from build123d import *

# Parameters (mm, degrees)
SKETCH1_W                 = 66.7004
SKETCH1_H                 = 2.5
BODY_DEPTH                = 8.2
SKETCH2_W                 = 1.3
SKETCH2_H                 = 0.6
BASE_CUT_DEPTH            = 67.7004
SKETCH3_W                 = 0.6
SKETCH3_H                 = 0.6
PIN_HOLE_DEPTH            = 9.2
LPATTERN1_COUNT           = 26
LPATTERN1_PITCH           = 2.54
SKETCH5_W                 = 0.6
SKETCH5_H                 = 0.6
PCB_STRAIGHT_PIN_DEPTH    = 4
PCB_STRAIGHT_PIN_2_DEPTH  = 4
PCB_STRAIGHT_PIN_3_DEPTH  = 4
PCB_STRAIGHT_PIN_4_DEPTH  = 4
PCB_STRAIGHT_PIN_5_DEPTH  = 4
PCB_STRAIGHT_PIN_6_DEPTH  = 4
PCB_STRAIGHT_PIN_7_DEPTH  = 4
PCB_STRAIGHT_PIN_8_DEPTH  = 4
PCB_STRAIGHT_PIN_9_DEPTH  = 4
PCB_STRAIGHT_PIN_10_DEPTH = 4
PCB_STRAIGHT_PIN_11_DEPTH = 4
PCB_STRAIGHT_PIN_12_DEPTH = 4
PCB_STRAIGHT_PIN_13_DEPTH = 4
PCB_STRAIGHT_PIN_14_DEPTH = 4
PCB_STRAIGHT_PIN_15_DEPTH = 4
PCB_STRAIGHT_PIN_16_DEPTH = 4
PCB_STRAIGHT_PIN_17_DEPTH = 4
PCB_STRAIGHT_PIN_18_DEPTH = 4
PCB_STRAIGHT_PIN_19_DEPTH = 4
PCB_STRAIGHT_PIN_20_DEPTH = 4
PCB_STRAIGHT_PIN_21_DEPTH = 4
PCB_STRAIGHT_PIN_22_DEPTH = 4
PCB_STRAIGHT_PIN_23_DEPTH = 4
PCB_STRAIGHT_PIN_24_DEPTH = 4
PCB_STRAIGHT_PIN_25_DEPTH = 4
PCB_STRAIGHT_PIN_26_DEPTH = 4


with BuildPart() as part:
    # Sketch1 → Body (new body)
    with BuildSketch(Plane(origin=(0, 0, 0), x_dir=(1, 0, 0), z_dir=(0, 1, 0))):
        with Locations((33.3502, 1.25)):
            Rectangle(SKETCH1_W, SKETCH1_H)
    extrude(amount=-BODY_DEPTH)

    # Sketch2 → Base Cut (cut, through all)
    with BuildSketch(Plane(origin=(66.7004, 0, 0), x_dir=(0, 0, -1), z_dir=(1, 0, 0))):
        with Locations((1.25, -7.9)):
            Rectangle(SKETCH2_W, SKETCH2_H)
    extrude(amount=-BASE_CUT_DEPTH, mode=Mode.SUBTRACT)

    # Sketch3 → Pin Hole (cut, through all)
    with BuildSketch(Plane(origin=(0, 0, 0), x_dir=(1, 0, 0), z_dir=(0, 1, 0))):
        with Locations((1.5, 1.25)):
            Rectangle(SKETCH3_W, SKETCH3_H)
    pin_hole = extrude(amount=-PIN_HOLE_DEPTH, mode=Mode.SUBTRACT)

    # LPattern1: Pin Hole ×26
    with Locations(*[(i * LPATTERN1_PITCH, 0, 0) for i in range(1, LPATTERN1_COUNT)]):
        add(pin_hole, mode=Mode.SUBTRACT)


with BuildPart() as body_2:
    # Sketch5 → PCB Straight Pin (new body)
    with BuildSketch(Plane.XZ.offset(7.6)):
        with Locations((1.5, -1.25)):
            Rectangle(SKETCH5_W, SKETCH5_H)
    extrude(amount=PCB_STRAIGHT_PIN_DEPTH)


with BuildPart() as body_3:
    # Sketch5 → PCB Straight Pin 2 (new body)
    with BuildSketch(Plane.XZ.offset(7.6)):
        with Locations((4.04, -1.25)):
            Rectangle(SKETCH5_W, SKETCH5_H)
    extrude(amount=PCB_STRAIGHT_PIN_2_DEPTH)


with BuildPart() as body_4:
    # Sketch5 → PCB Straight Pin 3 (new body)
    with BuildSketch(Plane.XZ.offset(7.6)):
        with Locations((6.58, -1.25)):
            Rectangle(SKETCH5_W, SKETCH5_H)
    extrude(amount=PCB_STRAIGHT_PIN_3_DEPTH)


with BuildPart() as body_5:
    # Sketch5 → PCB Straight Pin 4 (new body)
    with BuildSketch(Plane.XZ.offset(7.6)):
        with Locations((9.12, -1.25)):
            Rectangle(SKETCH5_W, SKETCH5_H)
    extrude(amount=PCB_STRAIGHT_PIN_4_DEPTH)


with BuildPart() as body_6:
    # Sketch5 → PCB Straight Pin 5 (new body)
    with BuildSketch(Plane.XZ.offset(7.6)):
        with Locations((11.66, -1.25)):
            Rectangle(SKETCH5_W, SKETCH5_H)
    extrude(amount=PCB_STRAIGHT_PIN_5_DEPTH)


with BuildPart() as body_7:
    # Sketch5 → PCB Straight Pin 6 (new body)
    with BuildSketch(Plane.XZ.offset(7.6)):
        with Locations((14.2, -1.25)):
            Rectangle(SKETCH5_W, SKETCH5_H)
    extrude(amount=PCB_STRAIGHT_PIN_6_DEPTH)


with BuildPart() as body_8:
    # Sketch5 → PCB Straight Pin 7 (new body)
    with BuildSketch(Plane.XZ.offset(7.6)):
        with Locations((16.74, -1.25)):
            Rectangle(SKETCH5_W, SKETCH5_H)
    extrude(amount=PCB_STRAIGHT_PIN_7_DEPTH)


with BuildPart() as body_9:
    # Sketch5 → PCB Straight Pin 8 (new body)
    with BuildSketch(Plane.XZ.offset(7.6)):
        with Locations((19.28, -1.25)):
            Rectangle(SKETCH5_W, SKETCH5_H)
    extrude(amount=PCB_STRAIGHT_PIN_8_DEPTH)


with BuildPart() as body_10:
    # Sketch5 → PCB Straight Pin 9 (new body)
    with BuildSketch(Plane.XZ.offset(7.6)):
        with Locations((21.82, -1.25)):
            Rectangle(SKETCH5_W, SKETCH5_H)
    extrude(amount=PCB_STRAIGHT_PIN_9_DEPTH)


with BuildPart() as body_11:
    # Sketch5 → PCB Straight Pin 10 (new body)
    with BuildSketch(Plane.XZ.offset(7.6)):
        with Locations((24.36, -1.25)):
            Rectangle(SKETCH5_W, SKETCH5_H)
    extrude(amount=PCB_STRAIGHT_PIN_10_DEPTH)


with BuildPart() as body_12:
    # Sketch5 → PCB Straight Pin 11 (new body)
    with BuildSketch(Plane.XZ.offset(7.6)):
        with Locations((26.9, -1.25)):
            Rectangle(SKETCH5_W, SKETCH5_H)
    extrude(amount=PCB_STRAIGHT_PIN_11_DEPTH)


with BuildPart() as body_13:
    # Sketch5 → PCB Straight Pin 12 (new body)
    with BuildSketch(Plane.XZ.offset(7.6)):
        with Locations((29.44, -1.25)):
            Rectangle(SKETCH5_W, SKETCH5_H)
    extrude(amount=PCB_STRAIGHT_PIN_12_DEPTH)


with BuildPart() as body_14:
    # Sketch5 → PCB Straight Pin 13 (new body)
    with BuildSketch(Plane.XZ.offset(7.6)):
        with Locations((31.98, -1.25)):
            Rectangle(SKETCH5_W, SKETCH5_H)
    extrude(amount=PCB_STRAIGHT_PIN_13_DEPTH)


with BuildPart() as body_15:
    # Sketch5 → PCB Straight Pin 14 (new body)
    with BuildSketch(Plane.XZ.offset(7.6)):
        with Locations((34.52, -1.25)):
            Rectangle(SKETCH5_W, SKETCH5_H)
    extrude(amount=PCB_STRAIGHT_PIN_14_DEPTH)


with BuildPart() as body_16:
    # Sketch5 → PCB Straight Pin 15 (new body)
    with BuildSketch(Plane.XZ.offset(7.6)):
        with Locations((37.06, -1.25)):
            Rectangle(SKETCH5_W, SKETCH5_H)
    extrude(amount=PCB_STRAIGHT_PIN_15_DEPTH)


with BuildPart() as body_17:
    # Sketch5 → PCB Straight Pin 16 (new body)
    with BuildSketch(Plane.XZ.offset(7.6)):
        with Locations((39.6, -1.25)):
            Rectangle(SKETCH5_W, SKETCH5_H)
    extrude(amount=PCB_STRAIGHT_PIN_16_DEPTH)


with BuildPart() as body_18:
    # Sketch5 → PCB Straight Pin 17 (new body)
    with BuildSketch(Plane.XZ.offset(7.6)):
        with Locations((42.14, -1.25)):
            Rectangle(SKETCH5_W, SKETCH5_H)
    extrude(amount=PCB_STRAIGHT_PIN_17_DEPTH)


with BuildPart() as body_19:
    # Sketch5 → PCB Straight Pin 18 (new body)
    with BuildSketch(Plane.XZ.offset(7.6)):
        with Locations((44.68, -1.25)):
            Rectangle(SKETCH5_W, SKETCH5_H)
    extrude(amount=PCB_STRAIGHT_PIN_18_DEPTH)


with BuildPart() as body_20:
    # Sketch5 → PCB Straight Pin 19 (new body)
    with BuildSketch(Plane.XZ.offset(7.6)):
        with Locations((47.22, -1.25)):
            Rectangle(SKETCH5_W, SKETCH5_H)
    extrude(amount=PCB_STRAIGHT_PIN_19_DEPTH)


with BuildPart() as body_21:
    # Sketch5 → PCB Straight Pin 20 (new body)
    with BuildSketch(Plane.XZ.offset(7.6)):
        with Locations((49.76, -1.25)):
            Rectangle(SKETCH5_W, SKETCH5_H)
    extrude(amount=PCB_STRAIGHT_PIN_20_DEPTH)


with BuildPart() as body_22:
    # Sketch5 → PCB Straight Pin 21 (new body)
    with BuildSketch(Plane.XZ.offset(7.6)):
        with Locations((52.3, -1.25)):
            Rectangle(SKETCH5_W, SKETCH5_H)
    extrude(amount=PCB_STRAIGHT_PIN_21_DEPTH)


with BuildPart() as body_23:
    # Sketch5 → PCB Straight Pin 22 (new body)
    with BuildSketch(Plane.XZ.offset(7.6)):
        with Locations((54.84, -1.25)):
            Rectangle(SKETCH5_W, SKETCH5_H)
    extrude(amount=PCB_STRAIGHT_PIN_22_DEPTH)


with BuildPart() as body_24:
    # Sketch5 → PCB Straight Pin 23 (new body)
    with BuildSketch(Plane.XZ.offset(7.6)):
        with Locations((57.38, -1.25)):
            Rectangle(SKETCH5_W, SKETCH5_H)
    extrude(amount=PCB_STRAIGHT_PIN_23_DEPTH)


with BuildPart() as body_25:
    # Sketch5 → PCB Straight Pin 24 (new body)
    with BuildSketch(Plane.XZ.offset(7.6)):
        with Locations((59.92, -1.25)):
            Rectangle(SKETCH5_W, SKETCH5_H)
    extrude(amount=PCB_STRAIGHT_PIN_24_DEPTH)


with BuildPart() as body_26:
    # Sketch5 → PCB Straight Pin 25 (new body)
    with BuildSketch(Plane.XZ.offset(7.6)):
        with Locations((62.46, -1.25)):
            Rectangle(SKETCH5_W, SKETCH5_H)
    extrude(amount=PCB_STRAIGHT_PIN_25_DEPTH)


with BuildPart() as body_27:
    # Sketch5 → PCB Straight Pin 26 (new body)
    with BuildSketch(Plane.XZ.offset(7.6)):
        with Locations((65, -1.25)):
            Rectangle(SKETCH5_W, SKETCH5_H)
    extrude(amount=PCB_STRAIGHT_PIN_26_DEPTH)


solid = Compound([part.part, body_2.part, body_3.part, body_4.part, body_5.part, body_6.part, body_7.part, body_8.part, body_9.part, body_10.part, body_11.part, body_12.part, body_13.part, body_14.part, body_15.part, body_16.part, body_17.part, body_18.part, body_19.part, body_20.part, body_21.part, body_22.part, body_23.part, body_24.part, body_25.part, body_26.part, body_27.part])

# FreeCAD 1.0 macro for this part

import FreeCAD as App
import Part
import Sketcher
Q = App.Units.Quantity


def add_polygon(sketch, points):
    """Adds a closed chain of lines whose ends are joined by coincident constraints."""
    first, n = sketch.GeometryCount, len(points)
    for a, b in zip(points, points[1:] + points[:1]):
        sketch.addGeometry(Part.LineSegment(App.Vector(*a, 0), App.Vector(*b, 0)), False)
    for i in range(n):
        sketch.addConstraint(Sketcher.Constraint("Coincident", first + i, 2, first + (i + 1) % n, 1))

doc = App.newDocument("Part")
body = doc.addObject("PartDesign::Body", "Body")

sketch1 = body.newObject("Sketcher::SketchObject", "Sketch")
sketch1.AttachmentSupport = (doc.getObject("XZ_Plane"), [""])
sketch1.MapMode = "FlatFace"
add_polygon(sketch1, [(0, -2.5), (0, 0), (66.7, 0), (66.7, -2.5)])
sketch1.addConstraint(Sketcher.Constraint("Vertical", 0))
sketch1.addConstraint(Sketcher.Constraint("Horizontal", 1))
sketch1.addConstraint(Sketcher.Constraint("Vertical", 2))
sketch1.addConstraint(Sketcher.Constraint("Horizontal", 3))
sketch1.addConstraint(Sketcher.Constraint("Coincident", 0, 2, -1, 1))
sketch1.addConstraint(Sketcher.Constraint("DistanceY", 0, 1, 0, 2, Q("2.5 mm")))
sketch1.addConstraint(Sketcher.Constraint("DistanceX", 1, 1, 1, 2, Q("66.7004 mm")))
pad1 = body.newObject("PartDesign::Pad", "Pad")
pad1.Profile = sketch1
pad1.Length = 8.2

sketch2 = body.newObject("Sketcher::SketchObject", "Sketch001")
sketch2.AttachmentSupport = (doc.getObject("YZ_Plane"), [""])
sketch2.MapMode = "FlatFace"
sketch2.AttachmentOffset = App.Placement(App.Vector(0, 0, 66.7004), App.Rotation())
add_polygon(sketch2, [(-7.6, -0.6), (-8.2, -0.6), (-8.2, -1.9), (-7.6, -1.9)])
sketch2.addConstraint(Sketcher.Constraint("Horizontal", 0))
sketch2.addConstraint(Sketcher.Constraint("Vertical", 1))
sketch2.addConstraint(Sketcher.Constraint("Horizontal", 2))
sketch2.addConstraint(Sketcher.Constraint("Vertical", 3))
sketch2.addConstraint(Sketcher.Constraint("DistanceX", 0, 2, 0, 1, Q("0.6 mm")))
sketch2.addConstraint(Sketcher.Constraint("DistanceY", 1, 2, 1, 1, Q("1.3 mm")))
sketch2.addConstraint(Sketcher.Constraint("DistanceX", 0, 2, -1, 1, Q("8.2 mm")))
sketch2.addConstraint(Sketcher.Constraint("DistanceY", 0, 2, -1, 1, Q("0.6 mm")))
pocket1 = body.newObject("PartDesign::Pocket", "Pocket")
pocket1.Profile = sketch2
pocket1.Type = "ThroughAll"

sketch3 = body.newObject("Sketcher::SketchObject", "Sketch002")
sketch3.AttachmentSupport = (doc.getObject("XZ_Plane"), [""])
sketch3.MapMode = "FlatFace"
add_polygon(sketch3, [(1.2, -1.6), (1.2, -0.9), (1.8, -0.9), (1.8, -1.6)])
sketch3.addConstraint(Sketcher.Constraint("Vertical", 0))
sketch3.addConstraint(Sketcher.Constraint("Horizontal", 1))
sketch3.addConstraint(Sketcher.Constraint("Vertical", 2))
sketch3.addConstraint(Sketcher.Constraint("Horizontal", 3))
sketch3.addConstraint(Sketcher.Constraint("Equal", 3, 0))
sketch3.addConstraint(Sketcher.Constraint("DistanceX", 1, 1, 1, 2, Q("0.6 mm")))
sketch3.addConstraint(Sketcher.Constraint("DistanceX", -1, 1, 0, 2, Q("1.2 mm")))
sketch3.addConstraint(Sketcher.Constraint("DistanceY", 0, 2, -1, 1, Q("0.95 mm")))
pocket2 = body.newObject("PartDesign::Pocket", "Pocket001")
pocket2.Profile = sketch3
pocket2.Type = "ThroughAll"
pocket2.Reversed = True
doc.recompute()

linearpattern = body.newObject("PartDesign::LinearPattern", "LinearPattern")
linearpattern.Originals = [pocket2]
linearpattern.Direction = (doc.getObject("X_Axis"), [""])
linearpattern.Mode = "offset"
linearpattern.Offset = 2.54
linearpattern.Occurrences = 26
body.Tip = linearpattern
body2 = doc.addObject("PartDesign::Body", "Body001")

sketch4 = body2.newObject("Sketcher::SketchObject", "Sketch003")
sketch4.AttachmentSupport = (doc.getObject("XZ_Plane001"), [""])
sketch4.MapMode = "FlatFace"
sketch4.AttachmentOffset = App.Placement(App.Vector(0, 0, 7.6), App.Rotation())
add_polygon(sketch4, [(1.2, -0.9), (1.2, -1.6), (1.8, -1.6), (1.8, -0.9)])
sketch4.addConstraint(Sketcher.Constraint("Vertical", 0))
sketch4.addConstraint(Sketcher.Constraint("Horizontal", 1))
sketch4.addConstraint(Sketcher.Constraint("Vertical", 2))
sketch4.addConstraint(Sketcher.Constraint("Horizontal", 3))
sketch4.addConstraint(Sketcher.Constraint("Equal", 3, 0))
sketch4.addConstraint(Sketcher.Constraint("DistanceX", 1, 1, 1, 2, Q("0.6 mm")))
sketch4.addConstraint(Sketcher.Constraint("DistanceX", -1, 1, 0, 2, Q("1.2 mm")))
sketch4.addConstraint(Sketcher.Constraint("DistanceY", 0, 2, -1, 1, Q("1.55 mm")))
pad2 = body2.newObject("PartDesign::Pad", "Pad001")
pad2.Profile = sketch4
pad2.Length = 4
body3 = doc.addObject("PartDesign::Body", "Body002")

sketch5 = body3.newObject("Sketcher::SketchObject", "Sketch004")
sketch5.AttachmentSupport = (doc.getObject("XZ_Plane002"), [""])
sketch5.MapMode = "FlatFace"
sketch5.AttachmentOffset = App.Placement(App.Vector(0, 0, 7.6), App.Rotation())
add_polygon(sketch5, [(3.7, -0.9), (3.7, -1.6), (4.3, -1.6), (4.3, -0.9)])
sketch5.addConstraint(Sketcher.Constraint("Vertical", 0))
sketch5.addConstraint(Sketcher.Constraint("Horizontal", 1))
sketch5.addConstraint(Sketcher.Constraint("Vertical", 2))
sketch5.addConstraint(Sketcher.Constraint("Horizontal", 3))
sketch5.addConstraint(Sketcher.Constraint("Equal", 3, 0))
sketch5.addConstraint(Sketcher.Constraint("DistanceX", 1, 1, 1, 2, Q("0.6 mm")))
sketch5.addConstraint(Sketcher.Constraint("DistanceX", -1, 1, 0, 2, Q("3.74 mm")))
sketch5.addConstraint(Sketcher.Constraint("DistanceY", 0, 2, -1, 1, Q("1.55 mm")))
pad3 = body3.newObject("PartDesign::Pad", "Pad002")
pad3.Profile = sketch5
pad3.Length = 4
body4 = doc.addObject("PartDesign::Body", "Body003")

sketch6 = body4.newObject("Sketcher::SketchObject", "Sketch005")
sketch6.AttachmentSupport = (doc.getObject("XZ_Plane003"), [""])
sketch6.MapMode = "FlatFace"
sketch6.AttachmentOffset = App.Placement(App.Vector(0, 0, 7.6), App.Rotation())
add_polygon(sketch6, [(6.3, -0.9), (6.3, -1.6), (6.9, -1.6), (6.9, -0.9)])
sketch6.addConstraint(Sketcher.Constraint("Vertical", 0))
sketch6.addConstraint(Sketcher.Constraint("Horizontal", 1))
sketch6.addConstraint(Sketcher.Constraint("Vertical", 2))
sketch6.addConstraint(Sketcher.Constraint("Horizontal", 3))
sketch6.addConstraint(Sketcher.Constraint("Equal", 3, 0))
sketch6.addConstraint(Sketcher.Constraint("DistanceX", 1, 1, 1, 2, Q("0.6 mm")))
sketch6.addConstraint(Sketcher.Constraint("DistanceX", -1, 1, 0, 2, Q("6.28 mm")))
sketch6.addConstraint(Sketcher.Constraint("DistanceY", 0, 2, -1, 1, Q("1.55 mm")))
pad4 = body4.newObject("PartDesign::Pad", "Pad003")
pad4.Profile = sketch6
pad4.Length = 4
body5 = doc.addObject("PartDesign::Body", "Body004")

sketch7 = body5.newObject("Sketcher::SketchObject", "Sketch006")
sketch7.AttachmentSupport = (doc.getObject("XZ_Plane004"), [""])
sketch7.MapMode = "FlatFace"
sketch7.AttachmentOffset = App.Placement(App.Vector(0, 0, 7.6), App.Rotation())
add_polygon(sketch7, [(8.8, -0.9), (8.8, -1.6), (9.4, -1.6), (9.4, -0.9)])
sketch7.addConstraint(Sketcher.Constraint("Vertical", 0))
sketch7.addConstraint(Sketcher.Constraint("Horizontal", 1))
sketch7.addConstraint(Sketcher.Constraint("Vertical", 2))
sketch7.addConstraint(Sketcher.Constraint("Horizontal", 3))
sketch7.addConstraint(Sketcher.Constraint("Equal", 3, 0))
sketch7.addConstraint(Sketcher.Constraint("DistanceX", 1, 1, 1, 2, Q("0.6 mm")))
sketch7.addConstraint(Sketcher.Constraint("DistanceX", -1, 1, 0, 2, Q("8.82 mm")))
sketch7.addConstraint(Sketcher.Constraint("DistanceY", 0, 2, -1, 1, Q("1.55 mm")))
pad5 = body5.newObject("PartDesign::Pad", "Pad004")
pad5.Profile = sketch7
pad5.Length = 4
body6 = doc.addObject("PartDesign::Body", "Body005")

sketch8 = body6.newObject("Sketcher::SketchObject", "Sketch007")
sketch8.AttachmentSupport = (doc.getObject("XZ_Plane005"), [""])
sketch8.MapMode = "FlatFace"
sketch8.AttachmentOffset = App.Placement(App.Vector(0, 0, 7.6), App.Rotation())
add_polygon(sketch8, [(11.4, -0.9), (11.4, -1.6), (12, -1.6), (12, -0.9)])
sketch8.addConstraint(Sketcher.Constraint("Vertical", 0))
sketch8.addConstraint(Sketcher.Constraint("Horizontal", 1))
sketch8.addConstraint(Sketcher.Constraint("Vertical", 2))
sketch8.addConstraint(Sketcher.Constraint("Horizontal", 3))
sketch8.addConstraint(Sketcher.Constraint("Equal", 3, 0))
sketch8.addConstraint(Sketcher.Constraint("DistanceX", 1, 1, 1, 2, Q("0.6 mm")))
sketch8.addConstraint(Sketcher.Constraint("DistanceX", -1, 1, 0, 2, Q("11.36 mm")))
sketch8.addConstraint(Sketcher.Constraint("DistanceY", 0, 2, -1, 1, Q("1.55 mm")))
pad6 = body6.newObject("PartDesign::Pad", "Pad005")
pad6.Profile = sketch8
pad6.Length = 4
body7 = doc.addObject("PartDesign::Body", "Body006")

sketch9 = body7.newObject("Sketcher::SketchObject", "Sketch008")
sketch9.AttachmentSupport = (doc.getObject("XZ_Plane006"), [""])
sketch9.MapMode = "FlatFace"
sketch9.AttachmentOffset = App.Placement(App.Vector(0, 0, 7.6), App.Rotation())
add_polygon(sketch9, [(13.9, -0.9), (13.9, -1.6), (14.5, -1.6), (14.5, -0.9)])
sketch9.addConstraint(Sketcher.Constraint("Vertical", 0))
sketch9.addConstraint(Sketcher.Constraint("Horizontal", 1))
sketch9.addConstraint(Sketcher.Constraint("Vertical", 2))
sketch9.addConstraint(Sketcher.Constraint("Horizontal", 3))
sketch9.addConstraint(Sketcher.Constraint("Equal", 3, 0))
sketch9.addConstraint(Sketcher.Constraint("DistanceX", 1, 1, 1, 2, Q("0.6 mm")))
sketch9.addConstraint(Sketcher.Constraint("DistanceX", -1, 1, 0, 2, Q("13.9 mm")))
sketch9.addConstraint(Sketcher.Constraint("DistanceY", 0, 2, -1, 1, Q("1.55 mm")))
pad7 = body7.newObject("PartDesign::Pad", "Pad006")
pad7.Profile = sketch9
pad7.Length = 4
body8 = doc.addObject("PartDesign::Body", "Body007")

sketch10 = body8.newObject("Sketcher::SketchObject", "Sketch009")
sketch10.AttachmentSupport = (doc.getObject("XZ_Plane007"), [""])
sketch10.MapMode = "FlatFace"
sketch10.AttachmentOffset = App.Placement(App.Vector(0, 0, 7.6), App.Rotation())
add_polygon(sketch10, [(16.4, -0.9), (16.4, -1.6), (17, -1.6), (17, -0.9)])
sketch10.addConstraint(Sketcher.Constraint("Vertical", 0))
sketch10.addConstraint(Sketcher.Constraint("Horizontal", 1))
sketch10.addConstraint(Sketcher.Constraint("Vertical", 2))
sketch10.addConstraint(Sketcher.Constraint("Horizontal", 3))
sketch10.addConstraint(Sketcher.Constraint("Equal", 3, 0))
sketch10.addConstraint(Sketcher.Constraint("DistanceX", 1, 1, 1, 2, Q("0.6 mm")))
sketch10.addConstraint(Sketcher.Constraint("DistanceX", -1, 1, 0, 2, Q("16.44 mm")))
sketch10.addConstraint(Sketcher.Constraint("DistanceY", 0, 2, -1, 1, Q("1.55 mm")))
pad8 = body8.newObject("PartDesign::Pad", "Pad007")
pad8.Profile = sketch10
pad8.Length = 4
body9 = doc.addObject("PartDesign::Body", "Body008")

sketch11 = body9.newObject("Sketcher::SketchObject", "Sketch010")
sketch11.AttachmentSupport = (doc.getObject("XZ_Plane008"), [""])
sketch11.MapMode = "FlatFace"
sketch11.AttachmentOffset = App.Placement(App.Vector(0, 0, 7.6), App.Rotation())
add_polygon(sketch11, [(19, -0.9), (19, -1.6), (19.6, -1.6), (19.6, -0.9)])
sketch11.addConstraint(Sketcher.Constraint("Vertical", 0))
sketch11.addConstraint(Sketcher.Constraint("Horizontal", 1))
sketch11.addConstraint(Sketcher.Constraint("Vertical", 2))
sketch11.addConstraint(Sketcher.Constraint("Horizontal", 3))
sketch11.addConstraint(Sketcher.Constraint("Equal", 3, 0))
sketch11.addConstraint(Sketcher.Constraint("DistanceX", 1, 1, 1, 2, Q("0.6 mm")))
sketch11.addConstraint(Sketcher.Constraint("DistanceX", -1, 1, 0, 2, Q("18.98 mm")))
sketch11.addConstraint(Sketcher.Constraint("DistanceY", 0, 2, -1, 1, Q("1.55 mm")))
pad9 = body9.newObject("PartDesign::Pad", "Pad008")
pad9.Profile = sketch11
pad9.Length = 4
body10 = doc.addObject("PartDesign::Body", "Body009")

sketch12 = body10.newObject("Sketcher::SketchObject", "Sketch011")
sketch12.AttachmentSupport = (doc.getObject("XZ_Plane009"), [""])
sketch12.MapMode = "FlatFace"
sketch12.AttachmentOffset = App.Placement(App.Vector(0, 0, 7.6), App.Rotation())
add_polygon(sketch12, [(21.5, -0.9), (21.5, -1.6), (22.1, -1.6), (22.1, -0.9)])
sketch12.addConstraint(Sketcher.Constraint("Vertical", 0))
sketch12.addConstraint(Sketcher.Constraint("Horizontal", 1))
sketch12.addConstraint(Sketcher.Constraint("Vertical", 2))
sketch12.addConstraint(Sketcher.Constraint("Horizontal", 3))
sketch12.addConstraint(Sketcher.Constraint("Equal", 3, 0))
sketch12.addConstraint(Sketcher.Constraint("DistanceX", 1, 1, 1, 2, Q("0.6 mm")))
sketch12.addConstraint(Sketcher.Constraint("DistanceX", -1, 1, 0, 2, Q("21.52 mm")))
sketch12.addConstraint(Sketcher.Constraint("DistanceY", 0, 2, -1, 1, Q("1.55 mm")))
pad10 = body10.newObject("PartDesign::Pad", "Pad009")
pad10.Profile = sketch12
pad10.Length = 4
body11 = doc.addObject("PartDesign::Body", "Body010")

sketch13 = body11.newObject("Sketcher::SketchObject", "Sketch012")
sketch13.AttachmentSupport = (doc.getObject("XZ_Plane010"), [""])
sketch13.MapMode = "FlatFace"
sketch13.AttachmentOffset = App.Placement(App.Vector(0, 0, 7.6), App.Rotation())
add_polygon(sketch13, [(24.1, -0.9), (24.1, -1.6), (24.7, -1.6), (24.7, -0.9)])
sketch13.addConstraint(Sketcher.Constraint("Vertical", 0))
sketch13.addConstraint(Sketcher.Constraint("Horizontal", 1))
sketch13.addConstraint(Sketcher.Constraint("Vertical", 2))
sketch13.addConstraint(Sketcher.Constraint("Horizontal", 3))
sketch13.addConstraint(Sketcher.Constraint("Equal", 3, 0))
sketch13.addConstraint(Sketcher.Constraint("DistanceX", 1, 1, 1, 2, Q("0.6 mm")))
sketch13.addConstraint(Sketcher.Constraint("DistanceX", -1, 1, 0, 2, Q("24.06 mm")))
sketch13.addConstraint(Sketcher.Constraint("DistanceY", 0, 2, -1, 1, Q("1.55 mm")))
pad11 = body11.newObject("PartDesign::Pad", "Pad010")
pad11.Profile = sketch13
pad11.Length = 4
body12 = doc.addObject("PartDesign::Body", "Body011")

sketch14 = body12.newObject("Sketcher::SketchObject", "Sketch013")
sketch14.AttachmentSupport = (doc.getObject("XZ_Plane011"), [""])
sketch14.MapMode = "FlatFace"
sketch14.AttachmentOffset = App.Placement(App.Vector(0, 0, 7.6), App.Rotation())
add_polygon(sketch14, [(26.6, -0.9), (26.6, -1.6), (27.2, -1.6), (27.2, -0.9)])
sketch14.addConstraint(Sketcher.Constraint("Vertical", 0))
sketch14.addConstraint(Sketcher.Constraint("Horizontal", 1))
sketch14.addConstraint(Sketcher.Constraint("Vertical", 2))
sketch14.addConstraint(Sketcher.Constraint("Horizontal", 3))
sketch14.addConstraint(Sketcher.Constraint("Equal", 3, 0))
sketch14.addConstraint(Sketcher.Constraint("DistanceX", 1, 1, 1, 2, Q("0.6 mm")))
sketch14.addConstraint(Sketcher.Constraint("DistanceX", -1, 1, 0, 2, Q("26.6 mm")))
sketch14.addConstraint(Sketcher.Constraint("DistanceY", 0, 2, -1, 1, Q("1.55 mm")))
pad12 = body12.newObject("PartDesign::Pad", "Pad011")
pad12.Profile = sketch14
pad12.Length = 4
body13 = doc.addObject("PartDesign::Body", "Body012")

sketch15 = body13.newObject("Sketcher::SketchObject", "Sketch014")
sketch15.AttachmentSupport = (doc.getObject("XZ_Plane012"), [""])
sketch15.MapMode = "FlatFace"
sketch15.AttachmentOffset = App.Placement(App.Vector(0, 0, 7.6), App.Rotation())
add_polygon(sketch15, [(29.1, -0.9), (29.1, -1.6), (29.7, -1.6), (29.7, -0.9)])
sketch15.addConstraint(Sketcher.Constraint("Vertical", 0))
sketch15.addConstraint(Sketcher.Constraint("Horizontal", 1))
sketch15.addConstraint(Sketcher.Constraint("Vertical", 2))
sketch15.addConstraint(Sketcher.Constraint("Horizontal", 3))
sketch15.addConstraint(Sketcher.Constraint("Equal", 3, 0))
sketch15.addConstraint(Sketcher.Constraint("DistanceX", 1, 1, 1, 2, Q("0.6 mm")))
sketch15.addConstraint(Sketcher.Constraint("DistanceX", -1, 1, 0, 2, Q("29.14 mm")))
sketch15.addConstraint(Sketcher.Constraint("DistanceY", 0, 2, -1, 1, Q("1.55 mm")))
pad13 = body13.newObject("PartDesign::Pad", "Pad012")
pad13.Profile = sketch15
pad13.Length = 4
body14 = doc.addObject("PartDesign::Body", "Body013")

sketch16 = body14.newObject("Sketcher::SketchObject", "Sketch015")
sketch16.AttachmentSupport = (doc.getObject("XZ_Plane013"), [""])
sketch16.MapMode = "FlatFace"
sketch16.AttachmentOffset = App.Placement(App.Vector(0, 0, 7.6), App.Rotation())
add_polygon(sketch16, [(31.7, -0.9), (31.7, -1.6), (32.3, -1.6), (32.3, -0.9)])
sketch16.addConstraint(Sketcher.Constraint("Vertical", 0))
sketch16.addConstraint(Sketcher.Constraint("Horizontal", 1))
sketch16.addConstraint(Sketcher.Constraint("Vertical", 2))
sketch16.addConstraint(Sketcher.Constraint("Horizontal", 3))
sketch16.addConstraint(Sketcher.Constraint("Equal", 3, 0))
sketch16.addConstraint(Sketcher.Constraint("DistanceX", 1, 1, 1, 2, Q("0.6 mm")))
sketch16.addConstraint(Sketcher.Constraint("DistanceX", -1, 1, 0, 2, Q("31.68 mm")))
sketch16.addConstraint(Sketcher.Constraint("DistanceY", 0, 2, -1, 1, Q("1.55 mm")))
pad14 = body14.newObject("PartDesign::Pad", "Pad013")
pad14.Profile = sketch16
pad14.Length = 4
body15 = doc.addObject("PartDesign::Body", "Body014")

sketch17 = body15.newObject("Sketcher::SketchObject", "Sketch016")
sketch17.AttachmentSupport = (doc.getObject("XZ_Plane014"), [""])
sketch17.MapMode = "FlatFace"
sketch17.AttachmentOffset = App.Placement(App.Vector(0, 0, 7.6), App.Rotation())
add_polygon(sketch17, [(34.2, -0.9), (34.2, -1.6), (34.8, -1.6), (34.8, -0.9)])
sketch17.addConstraint(Sketcher.Constraint("Vertical", 0))
sketch17.addConstraint(Sketcher.Constraint("Horizontal", 1))
sketch17.addConstraint(Sketcher.Constraint("Vertical", 2))
sketch17.addConstraint(Sketcher.Constraint("Horizontal", 3))
sketch17.addConstraint(Sketcher.Constraint("Equal", 3, 0))
sketch17.addConstraint(Sketcher.Constraint("DistanceX", 1, 1, 1, 2, Q("0.6 mm")))
sketch17.addConstraint(Sketcher.Constraint("DistanceX", -1, 1, 0, 2, Q("34.22 mm")))
sketch17.addConstraint(Sketcher.Constraint("DistanceY", 0, 2, -1, 1, Q("1.55 mm")))
pad15 = body15.newObject("PartDesign::Pad", "Pad014")
pad15.Profile = sketch17
pad15.Length = 4
body16 = doc.addObject("PartDesign::Body", "Body015")

sketch18 = body16.newObject("Sketcher::SketchObject", "Sketch017")
sketch18.AttachmentSupport = (doc.getObject("XZ_Plane015"), [""])
sketch18.MapMode = "FlatFace"
sketch18.AttachmentOffset = App.Placement(App.Vector(0, 0, 7.6), App.Rotation())
add_polygon(sketch18, [(36.8, -0.9), (36.8, -1.6), (37.4, -1.6), (37.4, -0.9)])
sketch18.addConstraint(Sketcher.Constraint("Vertical", 0))
sketch18.addConstraint(Sketcher.Constraint("Horizontal", 1))
sketch18.addConstraint(Sketcher.Constraint("Vertical", 2))
sketch18.addConstraint(Sketcher.Constraint("Horizontal", 3))
sketch18.addConstraint(Sketcher.Constraint("Equal", 3, 0))
sketch18.addConstraint(Sketcher.Constraint("DistanceX", 1, 1, 1, 2, Q("0.6 mm")))
sketch18.addConstraint(Sketcher.Constraint("DistanceX", -1, 1, 0, 2, Q("36.76 mm")))
sketch18.addConstraint(Sketcher.Constraint("DistanceY", 0, 2, -1, 1, Q("1.55 mm")))
pad16 = body16.newObject("PartDesign::Pad", "Pad015")
pad16.Profile = sketch18
pad16.Length = 4
body17 = doc.addObject("PartDesign::Body", "Body016")

sketch19 = body17.newObject("Sketcher::SketchObject", "Sketch018")
sketch19.AttachmentSupport = (doc.getObject("XZ_Plane016"), [""])
sketch19.MapMode = "FlatFace"
sketch19.AttachmentOffset = App.Placement(App.Vector(0, 0, 7.6), App.Rotation())
add_polygon(sketch19, [(39.3, -0.9), (39.3, -1.6), (39.9, -1.6), (39.9, -0.9)])
sketch19.addConstraint(Sketcher.Constraint("Vertical", 0))
sketch19.addConstraint(Sketcher.Constraint("Horizontal", 1))
sketch19.addConstraint(Sketcher.Constraint("Vertical", 2))
sketch19.addConstraint(Sketcher.Constraint("Horizontal", 3))
sketch19.addConstraint(Sketcher.Constraint("Equal", 3, 0))
sketch19.addConstraint(Sketcher.Constraint("DistanceX", 1, 1, 1, 2, Q("0.6 mm")))
sketch19.addConstraint(Sketcher.Constraint("DistanceX", -1, 1, 0, 2, Q("39.3 mm")))
sketch19.addConstraint(Sketcher.Constraint("DistanceY", 0, 2, -1, 1, Q("1.55 mm")))
pad17 = body17.newObject("PartDesign::Pad", "Pad016")
pad17.Profile = sketch19
pad17.Length = 4
body18 = doc.addObject("PartDesign::Body", "Body017")

sketch20 = body18.newObject("Sketcher::SketchObject", "Sketch019")
sketch20.AttachmentSupport = (doc.getObject("XZ_Plane017"), [""])
sketch20.MapMode = "FlatFace"
sketch20.AttachmentOffset = App.Placement(App.Vector(0, 0, 7.6), App.Rotation())
add_polygon(sketch20, [(41.8, -0.9), (41.8, -1.6), (42.4, -1.6), (42.4, -0.9)])
sketch20.addConstraint(Sketcher.Constraint("Vertical", 0))
sketch20.addConstraint(Sketcher.Constraint("Horizontal", 1))
sketch20.addConstraint(Sketcher.Constraint("Vertical", 2))
sketch20.addConstraint(Sketcher.Constraint("Horizontal", 3))
sketch20.addConstraint(Sketcher.Constraint("Equal", 3, 0))
sketch20.addConstraint(Sketcher.Constraint("DistanceX", 1, 1, 1, 2, Q("0.6 mm")))
sketch20.addConstraint(Sketcher.Constraint("DistanceX", -1, 1, 0, 2, Q("41.84 mm")))
sketch20.addConstraint(Sketcher.Constraint("DistanceY", 0, 2, -1, 1, Q("1.55 mm")))
pad18 = body18.newObject("PartDesign::Pad", "Pad017")
pad18.Profile = sketch20
pad18.Length = 4
body19 = doc.addObject("PartDesign::Body", "Body018")

sketch21 = body19.newObject("Sketcher::SketchObject", "Sketch020")
sketch21.AttachmentSupport = (doc.getObject("XZ_Plane018"), [""])
sketch21.MapMode = "FlatFace"
sketch21.AttachmentOffset = App.Placement(App.Vector(0, 0, 7.6), App.Rotation())
add_polygon(sketch21, [(44.4, -0.9), (44.4, -1.6), (45, -1.6), (45, -0.9)])
sketch21.addConstraint(Sketcher.Constraint("Vertical", 0))
sketch21.addConstraint(Sketcher.Constraint("Horizontal", 1))
sketch21.addConstraint(Sketcher.Constraint("Vertical", 2))
sketch21.addConstraint(Sketcher.Constraint("Horizontal", 3))
sketch21.addConstraint(Sketcher.Constraint("Equal", 3, 0))
sketch21.addConstraint(Sketcher.Constraint("DistanceX", 1, 1, 1, 2, Q("0.6 mm")))
sketch21.addConstraint(Sketcher.Constraint("DistanceX", -1, 1, 0, 2, Q("44.38 mm")))
sketch21.addConstraint(Sketcher.Constraint("DistanceY", 0, 2, -1, 1, Q("1.55 mm")))
pad19 = body19.newObject("PartDesign::Pad", "Pad018")
pad19.Profile = sketch21
pad19.Length = 4
body20 = doc.addObject("PartDesign::Body", "Body019")

sketch22 = body20.newObject("Sketcher::SketchObject", "Sketch021")
sketch22.AttachmentSupport = (doc.getObject("XZ_Plane019"), [""])
sketch22.MapMode = "FlatFace"
sketch22.AttachmentOffset = App.Placement(App.Vector(0, 0, 7.6), App.Rotation())
add_polygon(sketch22, [(46.9, -0.9), (46.9, -1.6), (47.5, -1.6), (47.5, -0.9)])
sketch22.addConstraint(Sketcher.Constraint("Vertical", 0))
sketch22.addConstraint(Sketcher.Constraint("Horizontal", 1))
sketch22.addConstraint(Sketcher.Constraint("Vertical", 2))
sketch22.addConstraint(Sketcher.Constraint("Horizontal", 3))
sketch22.addConstraint(Sketcher.Constraint("Equal", 3, 0))
sketch22.addConstraint(Sketcher.Constraint("DistanceX", 1, 1, 1, 2, Q("0.6 mm")))
sketch22.addConstraint(Sketcher.Constraint("DistanceX", -1, 1, 0, 2, Q("46.92 mm")))
sketch22.addConstraint(Sketcher.Constraint("DistanceY", 0, 2, -1, 1, Q("1.55 mm")))
pad20 = body20.newObject("PartDesign::Pad", "Pad019")
pad20.Profile = sketch22
pad20.Length = 4
body21 = doc.addObject("PartDesign::Body", "Body020")

sketch23 = body21.newObject("Sketcher::SketchObject", "Sketch022")
sketch23.AttachmentSupport = (doc.getObject("XZ_Plane020"), [""])
sketch23.MapMode = "FlatFace"
sketch23.AttachmentOffset = App.Placement(App.Vector(0, 0, 7.6), App.Rotation())
add_polygon(sketch23, [(49.5, -0.9), (49.5, -1.6), (50.1, -1.6), (50.1, -0.9)])
sketch23.addConstraint(Sketcher.Constraint("Vertical", 0))
sketch23.addConstraint(Sketcher.Constraint("Horizontal", 1))
sketch23.addConstraint(Sketcher.Constraint("Vertical", 2))
sketch23.addConstraint(Sketcher.Constraint("Horizontal", 3))
sketch23.addConstraint(Sketcher.Constraint("Equal", 3, 0))
sketch23.addConstraint(Sketcher.Constraint("DistanceX", 1, 1, 1, 2, Q("0.6 mm")))
sketch23.addConstraint(Sketcher.Constraint("DistanceX", -1, 1, 0, 2, Q("49.46 mm")))
sketch23.addConstraint(Sketcher.Constraint("DistanceY", 0, 2, -1, 1, Q("1.55 mm")))
pad21 = body21.newObject("PartDesign::Pad", "Pad020")
pad21.Profile = sketch23
pad21.Length = 4
body22 = doc.addObject("PartDesign::Body", "Body021")

sketch24 = body22.newObject("Sketcher::SketchObject", "Sketch023")
sketch24.AttachmentSupport = (doc.getObject("XZ_Plane021"), [""])
sketch24.MapMode = "FlatFace"
sketch24.AttachmentOffset = App.Placement(App.Vector(0, 0, 7.6), App.Rotation())
add_polygon(sketch24, [(52, -0.9), (52, -1.6), (52.6, -1.6), (52.6, -0.9)])
sketch24.addConstraint(Sketcher.Constraint("Vertical", 0))
sketch24.addConstraint(Sketcher.Constraint("Horizontal", 1))
sketch24.addConstraint(Sketcher.Constraint("Vertical", 2))
sketch24.addConstraint(Sketcher.Constraint("Horizontal", 3))
sketch24.addConstraint(Sketcher.Constraint("Equal", 3, 0))
sketch24.addConstraint(Sketcher.Constraint("DistanceX", 1, 1, 1, 2, Q("0.6 mm")))
sketch24.addConstraint(Sketcher.Constraint("DistanceX", -1, 1, 0, 2, Q("52 mm")))
sketch24.addConstraint(Sketcher.Constraint("DistanceY", 0, 2, -1, 1, Q("1.55 mm")))
pad22 = body22.newObject("PartDesign::Pad", "Pad021")
pad22.Profile = sketch24
pad22.Length = 4
body23 = doc.addObject("PartDesign::Body", "Body022")

sketch25 = body23.newObject("Sketcher::SketchObject", "Sketch024")
sketch25.AttachmentSupport = (doc.getObject("XZ_Plane022"), [""])
sketch25.MapMode = "FlatFace"
sketch25.AttachmentOffset = App.Placement(App.Vector(0, 0, 7.6), App.Rotation())
add_polygon(sketch25, [(54.5, -0.9), (54.5, -1.6), (55.1, -1.6), (55.1, -0.9)])
sketch25.addConstraint(Sketcher.Constraint("Vertical", 0))
sketch25.addConstraint(Sketcher.Constraint("Horizontal", 1))
sketch25.addConstraint(Sketcher.Constraint("Vertical", 2))
sketch25.addConstraint(Sketcher.Constraint("Horizontal", 3))
sketch25.addConstraint(Sketcher.Constraint("Equal", 3, 0))
sketch25.addConstraint(Sketcher.Constraint("DistanceX", 1, 1, 1, 2, Q("0.6 mm")))
sketch25.addConstraint(Sketcher.Constraint("DistanceX", -1, 1, 0, 2, Q("54.54 mm")))
sketch25.addConstraint(Sketcher.Constraint("DistanceY", 0, 2, -1, 1, Q("1.55 mm")))
pad23 = body23.newObject("PartDesign::Pad", "Pad022")
pad23.Profile = sketch25
pad23.Length = 4
body24 = doc.addObject("PartDesign::Body", "Body023")

sketch26 = body24.newObject("Sketcher::SketchObject", "Sketch025")
sketch26.AttachmentSupport = (doc.getObject("XZ_Plane023"), [""])
sketch26.MapMode = "FlatFace"
sketch26.AttachmentOffset = App.Placement(App.Vector(0, 0, 7.6), App.Rotation())
add_polygon(sketch26, [(57.1, -0.9), (57.1, -1.6), (57.7, -1.6), (57.7, -0.9)])
sketch26.addConstraint(Sketcher.Constraint("Vertical", 0))
sketch26.addConstraint(Sketcher.Constraint("Horizontal", 1))
sketch26.addConstraint(Sketcher.Constraint("Vertical", 2))
sketch26.addConstraint(Sketcher.Constraint("Horizontal", 3))
sketch26.addConstraint(Sketcher.Constraint("Equal", 3, 0))
sketch26.addConstraint(Sketcher.Constraint("DistanceX", 1, 1, 1, 2, Q("0.6 mm")))
sketch26.addConstraint(Sketcher.Constraint("DistanceX", -1, 1, 0, 2, Q("57.08 mm")))
sketch26.addConstraint(Sketcher.Constraint("DistanceY", 0, 2, -1, 1, Q("1.55 mm")))
pad24 = body24.newObject("PartDesign::Pad", "Pad023")
pad24.Profile = sketch26
pad24.Length = 4
body25 = doc.addObject("PartDesign::Body", "Body024")

sketch27 = body25.newObject("Sketcher::SketchObject", "Sketch026")
sketch27.AttachmentSupport = (doc.getObject("XZ_Plane024"), [""])
sketch27.MapMode = "FlatFace"
sketch27.AttachmentOffset = App.Placement(App.Vector(0, 0, 7.6), App.Rotation())
add_polygon(sketch27, [(59.6, -0.9), (59.6, -1.6), (60.2, -1.6), (60.2, -0.9)])
sketch27.addConstraint(Sketcher.Constraint("Vertical", 0))
sketch27.addConstraint(Sketcher.Constraint("Horizontal", 1))
sketch27.addConstraint(Sketcher.Constraint("Vertical", 2))
sketch27.addConstraint(Sketcher.Constraint("Horizontal", 3))
sketch27.addConstraint(Sketcher.Constraint("Equal", 3, 0))
sketch27.addConstraint(Sketcher.Constraint("DistanceX", 1, 1, 1, 2, Q("0.6 mm")))
sketch27.addConstraint(Sketcher.Constraint("DistanceX", -1, 1, 0, 2, Q("59.62 mm")))
sketch27.addConstraint(Sketcher.Constraint("DistanceY", 0, 2, -1, 1, Q("1.55 mm")))
pad25 = body25.newObject("PartDesign::Pad", "Pad024")
pad25.Profile = sketch27
pad25.Length = 4
body26 = doc.addObject("PartDesign::Body", "Body025")

sketch28 = body26.newObject("Sketcher::SketchObject", "Sketch027")
sketch28.AttachmentSupport = (doc.getObject("XZ_Plane025"), [""])
sketch28.MapMode = "FlatFace"
sketch28.AttachmentOffset = App.Placement(App.Vector(0, 0, 7.6), App.Rotation())
add_polygon(sketch28, [(62.2, -0.9), (62.2, -1.6), (62.8, -1.6), (62.8, -0.9)])
sketch28.addConstraint(Sketcher.Constraint("Vertical", 0))
sketch28.addConstraint(Sketcher.Constraint("Horizontal", 1))
sketch28.addConstraint(Sketcher.Constraint("Vertical", 2))
sketch28.addConstraint(Sketcher.Constraint("Horizontal", 3))
sketch28.addConstraint(Sketcher.Constraint("Equal", 3, 0))
sketch28.addConstraint(Sketcher.Constraint("DistanceX", 1, 1, 1, 2, Q("0.6 mm")))
sketch28.addConstraint(Sketcher.Constraint("DistanceX", -1, 1, 0, 2, Q("62.16 mm")))
sketch28.addConstraint(Sketcher.Constraint("DistanceY", 0, 2, -1, 1, Q("1.55 mm")))
pad26 = body26.newObject("PartDesign::Pad", "Pad025")
pad26.Profile = sketch28
pad26.Length = 4
body27 = doc.addObject("PartDesign::Body", "Body026")

sketch29 = body27.newObject("Sketcher::SketchObject", "Sketch028")
sketch29.AttachmentSupport = (doc.getObject("XZ_Plane026"), [""])
sketch29.MapMode = "FlatFace"
sketch29.AttachmentOffset = App.Placement(App.Vector(0, 0, 7.6), App.Rotation())
add_polygon(sketch29, [(64.7, -0.9), (64.7, -1.6), (65.3, -1.6), (65.3, -0.9)])
sketch29.addConstraint(Sketcher.Constraint("Vertical", 0))
sketch29.addConstraint(Sketcher.Constraint("Horizontal", 1))
sketch29.addConstraint(Sketcher.Constraint("Vertical", 2))
sketch29.addConstraint(Sketcher.Constraint("Horizontal", 3))
sketch29.addConstraint(Sketcher.Constraint("Equal", 3, 0))
sketch29.addConstraint(Sketcher.Constraint("DistanceX", 1, 1, 1, 2, Q("0.6 mm")))
sketch29.addConstraint(Sketcher.Constraint("DistanceX", -1, 1, 0, 2, Q("64.7 mm")))
sketch29.addConstraint(Sketcher.Constraint("DistanceY", 0, 2, -1, 1, Q("1.55 mm")))
pad27 = body27.newObject("PartDesign::Pad", "Pad026")
pad27.Profile = sketch29
pad27.Length = 4

doc.recompute()
